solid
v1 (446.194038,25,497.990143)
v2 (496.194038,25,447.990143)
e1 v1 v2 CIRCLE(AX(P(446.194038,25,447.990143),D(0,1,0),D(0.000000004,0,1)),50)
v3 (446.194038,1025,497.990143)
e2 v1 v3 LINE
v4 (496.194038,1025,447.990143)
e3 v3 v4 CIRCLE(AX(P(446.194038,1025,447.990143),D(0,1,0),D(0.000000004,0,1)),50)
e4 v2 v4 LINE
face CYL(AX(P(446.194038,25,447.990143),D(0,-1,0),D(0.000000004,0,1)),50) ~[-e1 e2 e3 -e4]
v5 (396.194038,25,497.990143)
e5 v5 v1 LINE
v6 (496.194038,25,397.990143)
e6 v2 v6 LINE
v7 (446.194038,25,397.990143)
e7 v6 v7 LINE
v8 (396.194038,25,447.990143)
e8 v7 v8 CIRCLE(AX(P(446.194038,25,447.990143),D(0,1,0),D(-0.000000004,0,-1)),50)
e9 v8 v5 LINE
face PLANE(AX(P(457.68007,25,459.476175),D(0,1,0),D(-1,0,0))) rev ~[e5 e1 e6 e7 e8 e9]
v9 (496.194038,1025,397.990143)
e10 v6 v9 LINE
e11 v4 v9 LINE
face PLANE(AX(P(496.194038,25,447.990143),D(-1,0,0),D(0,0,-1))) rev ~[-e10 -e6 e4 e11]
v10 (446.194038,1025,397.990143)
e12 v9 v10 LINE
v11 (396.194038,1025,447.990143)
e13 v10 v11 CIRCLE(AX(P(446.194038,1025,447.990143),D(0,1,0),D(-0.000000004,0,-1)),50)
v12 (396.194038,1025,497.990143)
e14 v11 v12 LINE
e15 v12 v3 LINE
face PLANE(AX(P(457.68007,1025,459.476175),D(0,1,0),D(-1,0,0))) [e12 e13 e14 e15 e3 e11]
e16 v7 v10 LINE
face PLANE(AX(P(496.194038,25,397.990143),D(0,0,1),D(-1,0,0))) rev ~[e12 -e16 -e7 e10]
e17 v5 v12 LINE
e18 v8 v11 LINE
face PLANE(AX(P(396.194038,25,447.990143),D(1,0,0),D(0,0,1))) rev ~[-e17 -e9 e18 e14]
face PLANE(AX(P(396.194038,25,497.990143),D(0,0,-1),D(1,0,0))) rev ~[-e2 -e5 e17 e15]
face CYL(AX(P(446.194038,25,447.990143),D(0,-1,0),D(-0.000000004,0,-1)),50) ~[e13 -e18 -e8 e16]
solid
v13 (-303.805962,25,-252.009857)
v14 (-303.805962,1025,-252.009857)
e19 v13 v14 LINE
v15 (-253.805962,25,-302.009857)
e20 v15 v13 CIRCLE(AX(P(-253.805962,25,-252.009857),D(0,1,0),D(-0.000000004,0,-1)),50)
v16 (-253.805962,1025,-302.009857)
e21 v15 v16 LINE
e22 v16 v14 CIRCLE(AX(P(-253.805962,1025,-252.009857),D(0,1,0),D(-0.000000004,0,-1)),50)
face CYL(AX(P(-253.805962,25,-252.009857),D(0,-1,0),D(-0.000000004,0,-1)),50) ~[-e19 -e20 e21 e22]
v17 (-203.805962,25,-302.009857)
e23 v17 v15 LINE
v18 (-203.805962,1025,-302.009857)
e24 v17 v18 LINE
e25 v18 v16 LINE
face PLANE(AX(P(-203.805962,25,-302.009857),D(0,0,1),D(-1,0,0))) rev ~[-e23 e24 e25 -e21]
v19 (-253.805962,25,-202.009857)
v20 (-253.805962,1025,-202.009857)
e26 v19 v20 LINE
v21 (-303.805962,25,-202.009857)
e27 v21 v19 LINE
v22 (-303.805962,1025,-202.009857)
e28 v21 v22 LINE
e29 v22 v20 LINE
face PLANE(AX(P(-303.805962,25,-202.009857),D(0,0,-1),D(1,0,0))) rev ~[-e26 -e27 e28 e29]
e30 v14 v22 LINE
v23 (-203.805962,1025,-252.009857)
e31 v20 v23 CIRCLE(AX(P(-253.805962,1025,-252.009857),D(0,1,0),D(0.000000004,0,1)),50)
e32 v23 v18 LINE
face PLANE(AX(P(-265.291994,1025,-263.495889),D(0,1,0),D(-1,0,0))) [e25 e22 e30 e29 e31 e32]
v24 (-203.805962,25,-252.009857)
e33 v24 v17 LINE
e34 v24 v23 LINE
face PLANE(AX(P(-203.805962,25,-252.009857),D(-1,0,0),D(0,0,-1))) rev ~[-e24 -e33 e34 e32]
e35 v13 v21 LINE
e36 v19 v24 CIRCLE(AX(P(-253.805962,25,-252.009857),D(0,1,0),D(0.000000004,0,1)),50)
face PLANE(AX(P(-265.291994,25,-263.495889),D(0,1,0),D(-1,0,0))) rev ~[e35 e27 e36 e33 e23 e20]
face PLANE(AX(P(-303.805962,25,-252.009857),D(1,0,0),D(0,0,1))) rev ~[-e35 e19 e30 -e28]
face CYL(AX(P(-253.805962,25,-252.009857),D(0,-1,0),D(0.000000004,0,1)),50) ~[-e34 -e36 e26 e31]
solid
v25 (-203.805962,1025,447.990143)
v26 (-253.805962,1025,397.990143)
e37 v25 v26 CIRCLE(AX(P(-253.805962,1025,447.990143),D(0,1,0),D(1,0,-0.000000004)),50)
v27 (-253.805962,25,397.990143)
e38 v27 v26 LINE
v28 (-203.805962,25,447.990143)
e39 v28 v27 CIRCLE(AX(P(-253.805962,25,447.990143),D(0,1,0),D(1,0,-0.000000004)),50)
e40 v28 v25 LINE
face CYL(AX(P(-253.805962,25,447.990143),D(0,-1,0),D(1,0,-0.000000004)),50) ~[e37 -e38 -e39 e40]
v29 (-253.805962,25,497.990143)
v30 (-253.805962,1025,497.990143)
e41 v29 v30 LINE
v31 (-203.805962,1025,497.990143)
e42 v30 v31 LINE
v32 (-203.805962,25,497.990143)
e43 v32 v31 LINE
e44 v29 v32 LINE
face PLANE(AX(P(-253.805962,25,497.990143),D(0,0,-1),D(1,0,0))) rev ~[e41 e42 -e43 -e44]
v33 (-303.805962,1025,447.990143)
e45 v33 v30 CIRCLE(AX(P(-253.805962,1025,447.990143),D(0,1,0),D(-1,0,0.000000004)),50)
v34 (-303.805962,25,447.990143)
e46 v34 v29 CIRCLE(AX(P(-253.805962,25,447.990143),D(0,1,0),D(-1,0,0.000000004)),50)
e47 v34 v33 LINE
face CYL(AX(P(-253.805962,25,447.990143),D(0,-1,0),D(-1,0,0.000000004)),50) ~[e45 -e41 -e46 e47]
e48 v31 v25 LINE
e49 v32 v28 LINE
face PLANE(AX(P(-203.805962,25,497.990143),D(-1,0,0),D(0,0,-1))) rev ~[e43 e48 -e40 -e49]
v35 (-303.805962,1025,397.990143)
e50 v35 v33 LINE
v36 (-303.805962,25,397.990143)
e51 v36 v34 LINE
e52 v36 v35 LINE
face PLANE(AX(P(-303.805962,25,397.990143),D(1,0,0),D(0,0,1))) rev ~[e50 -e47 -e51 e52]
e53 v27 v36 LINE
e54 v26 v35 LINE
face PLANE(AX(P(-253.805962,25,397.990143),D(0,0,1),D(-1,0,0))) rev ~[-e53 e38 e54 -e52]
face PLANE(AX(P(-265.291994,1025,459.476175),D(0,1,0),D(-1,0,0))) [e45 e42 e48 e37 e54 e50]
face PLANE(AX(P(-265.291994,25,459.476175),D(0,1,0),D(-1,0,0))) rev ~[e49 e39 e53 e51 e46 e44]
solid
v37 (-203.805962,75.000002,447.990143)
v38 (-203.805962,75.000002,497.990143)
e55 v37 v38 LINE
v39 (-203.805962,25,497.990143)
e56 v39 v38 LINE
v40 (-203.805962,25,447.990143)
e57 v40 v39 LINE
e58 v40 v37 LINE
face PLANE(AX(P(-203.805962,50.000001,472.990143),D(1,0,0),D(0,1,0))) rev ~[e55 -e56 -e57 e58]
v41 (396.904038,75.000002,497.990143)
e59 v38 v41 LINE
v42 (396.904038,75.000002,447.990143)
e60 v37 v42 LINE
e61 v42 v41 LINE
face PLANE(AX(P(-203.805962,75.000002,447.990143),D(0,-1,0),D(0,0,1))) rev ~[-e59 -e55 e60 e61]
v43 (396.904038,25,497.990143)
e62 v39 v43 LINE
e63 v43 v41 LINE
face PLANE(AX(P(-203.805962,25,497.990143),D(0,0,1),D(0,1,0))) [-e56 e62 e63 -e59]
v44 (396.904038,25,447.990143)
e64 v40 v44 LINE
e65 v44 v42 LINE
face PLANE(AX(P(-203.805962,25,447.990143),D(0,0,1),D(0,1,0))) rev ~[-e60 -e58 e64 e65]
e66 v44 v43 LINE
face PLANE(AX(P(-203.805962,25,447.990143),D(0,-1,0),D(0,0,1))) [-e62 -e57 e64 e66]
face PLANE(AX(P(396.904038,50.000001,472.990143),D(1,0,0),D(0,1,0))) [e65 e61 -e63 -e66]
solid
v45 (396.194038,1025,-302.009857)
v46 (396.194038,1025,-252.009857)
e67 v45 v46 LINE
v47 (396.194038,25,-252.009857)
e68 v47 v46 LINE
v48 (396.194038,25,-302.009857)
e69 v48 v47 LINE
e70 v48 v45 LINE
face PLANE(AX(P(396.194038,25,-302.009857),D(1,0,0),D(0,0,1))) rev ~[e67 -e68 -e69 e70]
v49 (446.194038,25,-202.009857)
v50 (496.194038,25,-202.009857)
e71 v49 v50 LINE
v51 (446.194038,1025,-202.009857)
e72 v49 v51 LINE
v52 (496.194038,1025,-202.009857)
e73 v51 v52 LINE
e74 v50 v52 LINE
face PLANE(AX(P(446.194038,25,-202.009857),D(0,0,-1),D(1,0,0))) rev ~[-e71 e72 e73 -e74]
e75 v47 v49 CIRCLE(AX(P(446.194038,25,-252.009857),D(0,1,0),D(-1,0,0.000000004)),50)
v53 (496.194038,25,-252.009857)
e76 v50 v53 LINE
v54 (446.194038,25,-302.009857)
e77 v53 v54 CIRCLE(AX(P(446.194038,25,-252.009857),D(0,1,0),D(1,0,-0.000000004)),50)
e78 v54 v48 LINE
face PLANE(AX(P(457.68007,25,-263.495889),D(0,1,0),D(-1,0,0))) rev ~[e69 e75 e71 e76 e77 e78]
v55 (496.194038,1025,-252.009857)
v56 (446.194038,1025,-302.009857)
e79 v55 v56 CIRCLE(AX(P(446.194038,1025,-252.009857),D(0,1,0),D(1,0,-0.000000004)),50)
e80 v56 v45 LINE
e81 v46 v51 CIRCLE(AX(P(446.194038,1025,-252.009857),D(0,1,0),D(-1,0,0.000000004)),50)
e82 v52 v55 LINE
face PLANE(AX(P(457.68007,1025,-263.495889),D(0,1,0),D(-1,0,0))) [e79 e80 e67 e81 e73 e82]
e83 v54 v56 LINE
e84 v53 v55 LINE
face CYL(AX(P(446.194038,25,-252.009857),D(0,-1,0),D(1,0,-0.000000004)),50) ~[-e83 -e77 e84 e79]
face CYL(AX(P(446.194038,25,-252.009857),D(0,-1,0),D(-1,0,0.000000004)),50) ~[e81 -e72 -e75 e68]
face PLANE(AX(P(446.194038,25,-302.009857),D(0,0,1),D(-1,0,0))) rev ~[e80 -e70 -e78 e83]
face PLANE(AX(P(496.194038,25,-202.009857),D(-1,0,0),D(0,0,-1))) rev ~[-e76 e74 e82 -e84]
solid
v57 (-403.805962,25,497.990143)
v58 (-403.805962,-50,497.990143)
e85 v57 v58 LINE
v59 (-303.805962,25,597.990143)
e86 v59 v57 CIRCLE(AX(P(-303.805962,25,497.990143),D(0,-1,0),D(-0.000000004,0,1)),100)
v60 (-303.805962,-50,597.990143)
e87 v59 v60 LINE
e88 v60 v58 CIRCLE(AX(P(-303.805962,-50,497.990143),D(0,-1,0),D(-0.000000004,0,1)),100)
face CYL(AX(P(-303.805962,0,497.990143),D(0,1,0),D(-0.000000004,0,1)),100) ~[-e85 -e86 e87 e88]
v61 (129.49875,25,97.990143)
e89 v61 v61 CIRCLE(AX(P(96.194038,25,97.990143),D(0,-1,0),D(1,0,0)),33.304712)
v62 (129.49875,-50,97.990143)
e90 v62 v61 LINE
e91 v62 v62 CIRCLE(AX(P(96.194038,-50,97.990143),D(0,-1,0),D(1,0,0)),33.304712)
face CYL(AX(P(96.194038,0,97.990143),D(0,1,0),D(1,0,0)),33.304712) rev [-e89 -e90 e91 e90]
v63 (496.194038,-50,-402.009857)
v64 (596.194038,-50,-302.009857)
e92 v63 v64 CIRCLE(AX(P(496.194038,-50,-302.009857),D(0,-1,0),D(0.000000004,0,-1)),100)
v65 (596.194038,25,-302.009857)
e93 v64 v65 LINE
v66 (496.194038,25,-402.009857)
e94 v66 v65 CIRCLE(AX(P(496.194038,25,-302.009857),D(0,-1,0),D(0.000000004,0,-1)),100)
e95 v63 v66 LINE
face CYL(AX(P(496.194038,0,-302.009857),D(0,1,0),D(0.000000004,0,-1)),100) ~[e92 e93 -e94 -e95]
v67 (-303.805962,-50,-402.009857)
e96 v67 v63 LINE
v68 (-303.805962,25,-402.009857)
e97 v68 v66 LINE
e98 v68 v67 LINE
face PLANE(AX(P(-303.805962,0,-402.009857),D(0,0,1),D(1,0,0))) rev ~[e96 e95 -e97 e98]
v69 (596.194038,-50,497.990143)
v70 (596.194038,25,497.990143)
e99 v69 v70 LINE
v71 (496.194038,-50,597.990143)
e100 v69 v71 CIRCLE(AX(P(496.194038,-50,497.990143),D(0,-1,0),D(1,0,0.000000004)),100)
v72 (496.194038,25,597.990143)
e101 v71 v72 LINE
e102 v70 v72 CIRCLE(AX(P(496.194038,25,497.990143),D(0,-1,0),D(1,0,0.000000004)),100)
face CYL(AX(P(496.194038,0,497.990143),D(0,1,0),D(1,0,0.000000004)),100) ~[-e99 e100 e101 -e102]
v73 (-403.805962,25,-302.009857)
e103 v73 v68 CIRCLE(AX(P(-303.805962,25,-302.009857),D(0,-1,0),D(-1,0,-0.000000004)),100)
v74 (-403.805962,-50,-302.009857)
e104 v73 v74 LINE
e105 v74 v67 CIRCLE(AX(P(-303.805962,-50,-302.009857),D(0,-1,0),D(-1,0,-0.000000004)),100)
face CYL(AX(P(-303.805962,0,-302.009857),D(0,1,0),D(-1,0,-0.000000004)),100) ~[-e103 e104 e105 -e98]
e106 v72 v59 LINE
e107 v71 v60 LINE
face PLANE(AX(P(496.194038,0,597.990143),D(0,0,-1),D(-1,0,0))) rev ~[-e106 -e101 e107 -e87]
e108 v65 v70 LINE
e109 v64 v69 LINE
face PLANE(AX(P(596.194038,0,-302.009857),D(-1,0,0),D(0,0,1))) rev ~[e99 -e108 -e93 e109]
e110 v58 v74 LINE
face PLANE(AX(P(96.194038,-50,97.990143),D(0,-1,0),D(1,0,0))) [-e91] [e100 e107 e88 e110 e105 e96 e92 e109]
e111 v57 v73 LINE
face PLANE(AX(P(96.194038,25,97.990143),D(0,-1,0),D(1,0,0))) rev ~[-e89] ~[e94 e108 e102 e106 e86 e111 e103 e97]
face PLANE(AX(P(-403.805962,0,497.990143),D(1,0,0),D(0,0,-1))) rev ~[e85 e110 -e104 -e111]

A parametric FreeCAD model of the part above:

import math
import FreeCAD as App
import Part
import Sketcher

V = App.Vector
Q = App.Units.Quantity

doc = App.newDocument("Part")
body = doc.addObject("PartDesign::Body", "Body")

# Sketch on XZ plane
sketch1 = body.newObject("Sketcher::SketchObject", "Sketch")
sketch1.AttachmentSupport = (doc.getObject("XZ_Plane"), [""])
sketch1.MapMode = "FlatFace"
sketch1.addGeometry([
    Part.LineSegment(V(496.194038, 597.990143, 0), V(-303.805962, 597.990143, 0)),  # 0
    Part.ArcOfCircle(Part.Circle(V(-303.805962, 497.990143, 0), V(0, 0, 1), 100), math.radians(90), math.radians(180)),  # 1
    Part.LineSegment(V(-403.805962, 497.990143, 0), V(-403.805962, -302.009857, 0)),  # 2
    Part.ArcOfCircle(Part.Circle(V(-303.805962, -302.009857, 0), V(0, 0, 1), 100), math.radians(-180), math.radians(-90)),  # 3
    Part.LineSegment(V(-303.805962, -402.009857, 0), V(496.194038, -402.009857, 0)),  # 4
    Part.ArcOfCircle(Part.Circle(V(496.194038, -302.009857, 0), V(0, 0, 1), 100), math.radians(-90), math.radians(0)),  # 5
    Part.LineSegment(V(596.194038, -302.009857, 0), V(596.194038, 497.990143, 0)),  # 6
    Part.ArcOfCircle(Part.Circle(V(496.194038, 497.990143, 0), V(0, 0, 1), 100), math.radians(0), math.radians(90)),  # 7
    Part.Circle(V(96.194038, 97.990143, 0), V(0, 0, 1), 33.304712),  # 8
], False)
sketch1.addConstraint([
    Sketcher.Constraint("Tangent", 0, 2, 1, 1),
    Sketcher.Constraint("Tangent", 1, 2, 2, 1),
    Sketcher.Constraint("Tangent", 2, 2, 3, 1),
    Sketcher.Constraint("Tangent", 3, 2, 4, 1),
    Sketcher.Constraint("Tangent", 4, 2, 5, 1),
    Sketcher.Constraint("Tangent", 5, 2, 6, 1),
    Sketcher.Constraint("Tangent", 6, 2, 7, 1),
    Sketcher.Constraint("Tangent", 7, 2, 0, 1),
    Sketcher.Constraint("Horizontal", 0),
    Sketcher.Constraint("Vertical", 2),
    Sketcher.Constraint("Horizontal", 4),
    Sketcher.Constraint("Vertical", 6),
    Sketcher.Constraint("Equal", 1, 3),
    Sketcher.Constraint("Equal", 3, 5),
    Sketcher.Constraint("Equal", 5, 7),
    Sketcher.Constraint("Equal", 4, 2),
    Sketcher.Constraint("Radius", 1, Q("100 mm")),
    Sketcher.Constraint("DistanceX", 0, 2, 0, 1, Q("800 mm")),
    Sketcher.Constraint("DistanceX", 1, 3, 8, 3, Q("400 mm")),
    Sketcher.Constraint("DistanceY", 8, 3, 1, 3, Q("400 mm")),
    Sketcher.Constraint("Diameter", 8, Q("66.609424 mm")),
    Sketcher.Constraint("DistanceX", 1, 3, -1, 1, Q("303.805962 mm")),
    Sketcher.Constraint("DistanceY", -1, 1, 1, 3, Q("497.990143 mm")),
])
pad1 = body.newObject("PartDesign::Pad", "Pad")
pad1.Profile = sketch1
pad1.Length = 50
pad1.Midplane = True

# Sketch on XZ plane
sketch2 = body.newObject("Sketcher::SketchObject", "Sketch001")
sketch2.AttachmentSupport = (doc.getObject("XZ_Plane"), [""])
sketch2.MapMode = "FlatFace"
sketch2.addGeometry([
    Part.LineSegment(V(496.194038, 597.990143, 0), V(-303.805962, 597.990143, 0)),  # 0
    Part.ArcOfCircle(Part.Circle(V(-303.805962, 497.990143, 0), V(0, 0, 1), 100), math.radians(90), math.radians(180)),  # 1
    Part.LineSegment(V(-403.805962, 497.990143, 0), V(-403.805962, -302.009857, 0)),  # 2
    Part.ArcOfCircle(Part.Circle(V(-303.805962, -302.009857, 0), V(0, 0, 1), 100), math.radians(-180), math.radians(-90)),  # 3
    Part.LineSegment(V(-303.805962, -402.009857, 0), V(496.194038, -402.009857, 0)),  # 4
    Part.ArcOfCircle(Part.Circle(V(496.194038, -302.009857, 0), V(0, 0, 1), 100), math.radians(-90), math.radians(0)),  # 5
    Part.LineSegment(V(596.194038, -302.009857, 0), V(596.194038, 497.990143, 0)),  # 6
    Part.ArcOfCircle(Part.Circle(V(496.194038, 497.990143, 0), V(0, 0, 1), 100), math.radians(0), math.radians(90)),  # 7
    Part.Circle(V(96.194038, 97.990143, 0), V(0, 0, 1), 33.304712),  # 8
], False)
sketch2.addConstraint([
    Sketcher.Constraint("Tangent", 0, 2, 1, 1),
    Sketcher.Constraint("Tangent", 1, 2, 2, 1),
    Sketcher.Constraint("Tangent", 2, 2, 3, 1),
    Sketcher.Constraint("Tangent", 3, 2, 4, 1),
    Sketcher.Constraint("Tangent", 4, 2, 5, 1),
    Sketcher.Constraint("Tangent", 5, 2, 6, 1),
    Sketcher.Constraint("Tangent", 6, 2, 7, 1),
    Sketcher.Constraint("Tangent", 7, 2, 0, 1),
    Sketcher.Constraint("Horizontal", 0),
    Sketcher.Constraint("Vertical", 2),
    Sketcher.Constraint("Horizontal", 4),
    Sketcher.Constraint("Vertical", 6),
    Sketcher.Constraint("Equal", 1, 3),
    Sketcher.Constraint("Equal", 3, 5),
    Sketcher.Constraint("Equal", 5, 7),
    Sketcher.Constraint("Equal", 4, 2),
    Sketcher.Constraint("Radius", 1, Q("100 mm")),
    Sketcher.Constraint("DistanceX", 0, 2, 0, 1, Q("800 mm")),
    Sketcher.Constraint("DistanceX", 1, 3, 8, 3, Q("400 mm")),
    Sketcher.Constraint("DistanceY", 8, 3, 1, 3, Q("400 mm")),
    Sketcher.Constraint("Diameter", 8, Q("66.609424 mm")),
    Sketcher.Constraint("DistanceX", 1, 3, -1, 1, Q("303.805962 mm")),
    Sketcher.Constraint("DistanceY", -1, 1, 1, 3, Q("497.990143 mm")),
])
pad2 = body.newObject("PartDesign::Pad", "Pad001")
pad2.Profile = sketch2
pad2.Length = 50
body2 = doc.addObject("PartDesign::Body", "Body001")
body2.AllowCompound = True

# Sketch on XZ plane
sketch3 = body2.newObject("Sketcher::SketchObject", "Sketch002")
sketch3.AttachmentSupport = (doc.getObject("XZ_Plane001"), [""])
sketch3.MapMode = "FlatFace"
sketch3.AttachmentOffset = App.Placement(V(0, 0, -25), App.Rotation())
sketch3.addGeometry([
    Part.LineSegment(V(396.194038, 497.990143, 0), V(446.194038, 497.990143, 0)),  # 0
    Part.ArcOfCircle(Part.Circle(V(446.194038, 447.990143, 0), V(0, 0, 1), 50), math.radians(0), math.radians(90)),  # 1
    Part.LineSegment(V(496.194038, 447.990143, 0), V(496.194038, 397.990143, 0)),  # 2
    Part.LineSegment(V(496.194038, 397.990143, 0), V(446.194038, 397.990143, 0)),  # 3
    Part.ArcOfCircle(Part.Circle(V(446.194038, 447.990143, 0), V(0, 0, 1), 50), math.radians(-180), math.radians(-90)),  # 4
    Part.LineSegment(V(396.194038, 447.990143, 0), V(396.194038, 497.990143, 0)),  # 5
    Part.ArcOfCircle(Part.Circle(V(-253.805962, 447.990143, 0), V(0, 0, 1), 50), math.radians(90), math.radians(180)),  # 6
    Part.LineSegment(V(-253.805962, 497.990143, 0), V(-203.805962, 497.990143, 0)),  # 7
    Part.LineSegment(V(-203.805962, 497.990143, 0), V(-203.805962, 447.990143, 0)),  # 8
    Part.ArcOfCircle(Part.Circle(V(-253.805962, 447.990143, 0), V(0, 0, 1), 50), math.radians(-90), math.radians(0)),  # 9
    Part.LineSegment(V(-253.805962, 397.990143, 0), V(-303.805962, 397.990143, 0)),  # 10
    Part.LineSegment(V(-303.805962, 397.990143, 0), V(-303.805962, 447.990143, 0)),  # 11
    Part.LineSegment(V(-203.805962, -302.009857, 0), V(-253.805962, -302.009857, 0)),  # 12
    Part.ArcOfCircle(Part.Circle(V(-253.805962, -252.009857, 0), V(0, 0, 1), 50), math.radians(-180), math.radians(-90)),  # 13
    Part.LineSegment(V(-303.805962, -252.009857, 0), V(-303.805962, -202.009857, 0)),  # 14
    Part.LineSegment(V(-303.805962, -202.009857, 0), V(-253.805962, -202.009857, 0)),  # 15
    Part.ArcOfCircle(Part.Circle(V(-253.805962, -252.009857, 0), V(0, 0, 1), 50), math.radians(0), math.radians(90)),  # 16
    Part.LineSegment(V(-203.805962, -252.009857, 0), V(-203.805962, -302.009857, 0)),  # 17
    Part.ArcOfCircle(Part.Circle(V(446.194038, -252.009857, 0), V(0, 0, 1), 50), math.radians(-90), math.radians(0)),  # 18
    Part.LineSegment(V(446.194038, -302.009857, 0), V(396.194038, -302.009857, 0)),  # 19
    Part.LineSegment(V(396.194038, -302.009857, 0), V(396.194038, -252.009857, 0)),  # 20
    Part.ArcOfCircle(Part.Circle(V(446.194038, -252.009857, 0), V(0, 0, 1), 50), math.radians(90), math.radians(180)),  # 21
    Part.LineSegment(V(446.194038, -202.009857, 0), V(496.194038, -202.009857, 0)),  # 22
    Part.LineSegment(V(496.194038, -202.009857, 0), V(496.194038, -252.009857, 0)),  # 23
], False)
sketch3.addConstraint([
    Sketcher.Constraint("Tangent", 0, 2, 1, 2),
    Sketcher.Constraint("Tangent", 1, 1, 2, 1),
    Sketcher.Constraint("Coincident", 2, 2, 3, 1),
    Sketcher.Constraint("Tangent", 3, 2, 4, 2),
    Sketcher.Constraint("Tangent", 4, 1, 5, 1),
    Sketcher.Constraint("Coincident", 5, 2, 0, 1),
    Sketcher.Constraint("Tangent", 6, 1, 7, 1),
    Sketcher.Constraint("Coincident", 7, 2, 8, 1),
    Sketcher.Constraint("Tangent", 8, 2, 9, 2),
    Sketcher.Constraint("Tangent", 9, 1, 10, 1),
    Sketcher.Constraint("Coincident", 10, 2, 11, 1),
    Sketcher.Constraint("Tangent", 11, 2, 6, 2),
    Sketcher.Constraint("Tangent", 12, 2, 13, 2),
    Sketcher.Constraint("Tangent", 13, 1, 14, 1),
    Sketcher.Constraint("Coincident", 14, 2, 15, 1),
    Sketcher.Constraint("Tangent", 15, 2, 16, 2),
    Sketcher.Constraint("Tangent", 16, 1, 17, 1),
    Sketcher.Constraint("Coincident", 17, 2, 12, 1),
    Sketcher.Constraint("Tangent", 18, 1, 19, 1),
    Sketcher.Constraint("Coincident", 19, 2, 20, 1),
    Sketcher.Constraint("Tangent", 20, 2, 21, 2),
    Sketcher.Constraint("Tangent", 21, 1, 22, 1),
    Sketcher.Constraint("Coincident", 22, 2, 23, 1),
    Sketcher.Constraint("Tangent", 23, 2, 18, 2),
    Sketcher.Constraint("Horizontal", 0),
    Sketcher.Constraint("Vertical", 2),
    Sketcher.Constraint("Horizontal", 3),
    Sketcher.Constraint("Vertical", 5),
    Sketcher.Constraint("Horizontal", 7),
    Sketcher.Constraint("Vertical", 8),
    Sketcher.Constraint("Horizontal", 10),
    Sketcher.Constraint("Vertical", 11),
    Sketcher.Constraint("Horizontal", 12),
    Sketcher.Constraint("Vertical", 14),
    Sketcher.Constraint("Horizontal", 15),
    Sketcher.Constraint("Vertical", 17),
    Sketcher.Constraint("Horizontal", 19),
    Sketcher.Constraint("Vertical", 20),
    Sketcher.Constraint("Horizontal", 22),
    Sketcher.Constraint("Vertical", 23),
    Sketcher.Constraint("Coincident", 4, 3, 1, 3),
    Sketcher.Constraint("Coincident", 9, 3, 6, 3),
    Sketcher.Constraint("Coincident", 16, 3, 13, 3),
    Sketcher.Constraint("Coincident", 21, 3, 18, 3),
    Sketcher.Constraint("Equal", 1, 4),
    Sketcher.Constraint("Equal", 4, 6),
    Sketcher.Constraint("Equal", 6, 9),
    Sketcher.Constraint("Equal", 9, 13),
    Sketcher.Constraint("Equal", 13, 16),
    Sketcher.Constraint("Equal", 16, 18),
    Sketcher.Constraint("Equal", 18, 21),
    Sketcher.Constraint("Horizontal", 4, 3, 6, 3),
    Sketcher.Constraint("Horizontal", 16, 3, 18, 3),
    Sketcher.Constraint("Vertical", 9, 3, 13, 3),
    Sketcher.Constraint("Vertical", 4, 3, 18, 3),
    Sketcher.Constraint("Radius", 1, Q("50 mm")),
    Sketcher.Constraint("DistanceX", 6, 3, 1, 3, Q("700 mm")),
    Sketcher.Constraint("DistanceY", 13, 3, 6, 3, Q("700 mm")),
    Sketcher.Constraint("DistanceX", -1, 1, 4, 3, Q("446.194038 mm")),
    Sketcher.Constraint("DistanceY", -1, 1, 1, 3, Q("447.990143 mm")),
])
pad3 = body2.newObject("PartDesign::Pad", "Pad002")
pad3.Profile = sketch3
pad3.Length = 1000
pad3.Reversed = True
body3 = doc.addObject("PartDesign::Body", "Body002")

# Sketch on YZ plane
sketch4 = body3.newObject("Sketcher::SketchObject", "Sketch003")
sketch4.AttachmentSupport = (doc.getObject("YZ_Plane002"), [""])
sketch4.MapMode = "FlatFace"
sketch4.AttachmentOffset = App.Placement(V(0, 0, -203.805962), App.Rotation())
sketch4.addGeometry([
    Part.LineSegment(V(25, 497.990143, 0), V(25, 447.990143, 0)),
    Part.LineSegment(V(25, 447.990143, 0), V(75.000002, 447.990143, 0)),
    Part.LineSegment(V(75.000002, 447.990143, 0), V(75.000002, 497.990143, 0)),
    Part.LineSegment(V(75.000002, 497.990143, 0), V(25, 497.990143, 0)),
], False)
sketch4.addConstraint([
    Sketcher.Constraint("Coincident", 0, 2, 1, 1),
    Sketcher.Constraint("Coincident", 1, 2, 2, 1),
    Sketcher.Constraint("Coincident", 2, 2, 3, 1),
    Sketcher.Constraint("Coincident", 3, 2, 0, 1),
    Sketcher.Constraint("Vertical", 0),
    Sketcher.Constraint("Horizontal", 1),
    Sketcher.Constraint("Vertical", 2),
    Sketcher.Constraint("Horizontal", 3),
    Sketcher.Constraint("Equal", 3, 0),
    Sketcher.Constraint("DistanceX", 1, 1, 1, 2, Q("50.000002 mm")),
    Sketcher.Constraint("DistanceX", -1, 1, 0, 2, Q("25 mm")),
    Sketcher.Constraint("DistanceY", -1, 1, 0, 2, Q("447.990143 mm")),
])
pad4 = body3.newObject("PartDesign::Pad", "Pad003")
pad4.Profile = sketch4
pad4.Length = 600.71

doc.recompute()
